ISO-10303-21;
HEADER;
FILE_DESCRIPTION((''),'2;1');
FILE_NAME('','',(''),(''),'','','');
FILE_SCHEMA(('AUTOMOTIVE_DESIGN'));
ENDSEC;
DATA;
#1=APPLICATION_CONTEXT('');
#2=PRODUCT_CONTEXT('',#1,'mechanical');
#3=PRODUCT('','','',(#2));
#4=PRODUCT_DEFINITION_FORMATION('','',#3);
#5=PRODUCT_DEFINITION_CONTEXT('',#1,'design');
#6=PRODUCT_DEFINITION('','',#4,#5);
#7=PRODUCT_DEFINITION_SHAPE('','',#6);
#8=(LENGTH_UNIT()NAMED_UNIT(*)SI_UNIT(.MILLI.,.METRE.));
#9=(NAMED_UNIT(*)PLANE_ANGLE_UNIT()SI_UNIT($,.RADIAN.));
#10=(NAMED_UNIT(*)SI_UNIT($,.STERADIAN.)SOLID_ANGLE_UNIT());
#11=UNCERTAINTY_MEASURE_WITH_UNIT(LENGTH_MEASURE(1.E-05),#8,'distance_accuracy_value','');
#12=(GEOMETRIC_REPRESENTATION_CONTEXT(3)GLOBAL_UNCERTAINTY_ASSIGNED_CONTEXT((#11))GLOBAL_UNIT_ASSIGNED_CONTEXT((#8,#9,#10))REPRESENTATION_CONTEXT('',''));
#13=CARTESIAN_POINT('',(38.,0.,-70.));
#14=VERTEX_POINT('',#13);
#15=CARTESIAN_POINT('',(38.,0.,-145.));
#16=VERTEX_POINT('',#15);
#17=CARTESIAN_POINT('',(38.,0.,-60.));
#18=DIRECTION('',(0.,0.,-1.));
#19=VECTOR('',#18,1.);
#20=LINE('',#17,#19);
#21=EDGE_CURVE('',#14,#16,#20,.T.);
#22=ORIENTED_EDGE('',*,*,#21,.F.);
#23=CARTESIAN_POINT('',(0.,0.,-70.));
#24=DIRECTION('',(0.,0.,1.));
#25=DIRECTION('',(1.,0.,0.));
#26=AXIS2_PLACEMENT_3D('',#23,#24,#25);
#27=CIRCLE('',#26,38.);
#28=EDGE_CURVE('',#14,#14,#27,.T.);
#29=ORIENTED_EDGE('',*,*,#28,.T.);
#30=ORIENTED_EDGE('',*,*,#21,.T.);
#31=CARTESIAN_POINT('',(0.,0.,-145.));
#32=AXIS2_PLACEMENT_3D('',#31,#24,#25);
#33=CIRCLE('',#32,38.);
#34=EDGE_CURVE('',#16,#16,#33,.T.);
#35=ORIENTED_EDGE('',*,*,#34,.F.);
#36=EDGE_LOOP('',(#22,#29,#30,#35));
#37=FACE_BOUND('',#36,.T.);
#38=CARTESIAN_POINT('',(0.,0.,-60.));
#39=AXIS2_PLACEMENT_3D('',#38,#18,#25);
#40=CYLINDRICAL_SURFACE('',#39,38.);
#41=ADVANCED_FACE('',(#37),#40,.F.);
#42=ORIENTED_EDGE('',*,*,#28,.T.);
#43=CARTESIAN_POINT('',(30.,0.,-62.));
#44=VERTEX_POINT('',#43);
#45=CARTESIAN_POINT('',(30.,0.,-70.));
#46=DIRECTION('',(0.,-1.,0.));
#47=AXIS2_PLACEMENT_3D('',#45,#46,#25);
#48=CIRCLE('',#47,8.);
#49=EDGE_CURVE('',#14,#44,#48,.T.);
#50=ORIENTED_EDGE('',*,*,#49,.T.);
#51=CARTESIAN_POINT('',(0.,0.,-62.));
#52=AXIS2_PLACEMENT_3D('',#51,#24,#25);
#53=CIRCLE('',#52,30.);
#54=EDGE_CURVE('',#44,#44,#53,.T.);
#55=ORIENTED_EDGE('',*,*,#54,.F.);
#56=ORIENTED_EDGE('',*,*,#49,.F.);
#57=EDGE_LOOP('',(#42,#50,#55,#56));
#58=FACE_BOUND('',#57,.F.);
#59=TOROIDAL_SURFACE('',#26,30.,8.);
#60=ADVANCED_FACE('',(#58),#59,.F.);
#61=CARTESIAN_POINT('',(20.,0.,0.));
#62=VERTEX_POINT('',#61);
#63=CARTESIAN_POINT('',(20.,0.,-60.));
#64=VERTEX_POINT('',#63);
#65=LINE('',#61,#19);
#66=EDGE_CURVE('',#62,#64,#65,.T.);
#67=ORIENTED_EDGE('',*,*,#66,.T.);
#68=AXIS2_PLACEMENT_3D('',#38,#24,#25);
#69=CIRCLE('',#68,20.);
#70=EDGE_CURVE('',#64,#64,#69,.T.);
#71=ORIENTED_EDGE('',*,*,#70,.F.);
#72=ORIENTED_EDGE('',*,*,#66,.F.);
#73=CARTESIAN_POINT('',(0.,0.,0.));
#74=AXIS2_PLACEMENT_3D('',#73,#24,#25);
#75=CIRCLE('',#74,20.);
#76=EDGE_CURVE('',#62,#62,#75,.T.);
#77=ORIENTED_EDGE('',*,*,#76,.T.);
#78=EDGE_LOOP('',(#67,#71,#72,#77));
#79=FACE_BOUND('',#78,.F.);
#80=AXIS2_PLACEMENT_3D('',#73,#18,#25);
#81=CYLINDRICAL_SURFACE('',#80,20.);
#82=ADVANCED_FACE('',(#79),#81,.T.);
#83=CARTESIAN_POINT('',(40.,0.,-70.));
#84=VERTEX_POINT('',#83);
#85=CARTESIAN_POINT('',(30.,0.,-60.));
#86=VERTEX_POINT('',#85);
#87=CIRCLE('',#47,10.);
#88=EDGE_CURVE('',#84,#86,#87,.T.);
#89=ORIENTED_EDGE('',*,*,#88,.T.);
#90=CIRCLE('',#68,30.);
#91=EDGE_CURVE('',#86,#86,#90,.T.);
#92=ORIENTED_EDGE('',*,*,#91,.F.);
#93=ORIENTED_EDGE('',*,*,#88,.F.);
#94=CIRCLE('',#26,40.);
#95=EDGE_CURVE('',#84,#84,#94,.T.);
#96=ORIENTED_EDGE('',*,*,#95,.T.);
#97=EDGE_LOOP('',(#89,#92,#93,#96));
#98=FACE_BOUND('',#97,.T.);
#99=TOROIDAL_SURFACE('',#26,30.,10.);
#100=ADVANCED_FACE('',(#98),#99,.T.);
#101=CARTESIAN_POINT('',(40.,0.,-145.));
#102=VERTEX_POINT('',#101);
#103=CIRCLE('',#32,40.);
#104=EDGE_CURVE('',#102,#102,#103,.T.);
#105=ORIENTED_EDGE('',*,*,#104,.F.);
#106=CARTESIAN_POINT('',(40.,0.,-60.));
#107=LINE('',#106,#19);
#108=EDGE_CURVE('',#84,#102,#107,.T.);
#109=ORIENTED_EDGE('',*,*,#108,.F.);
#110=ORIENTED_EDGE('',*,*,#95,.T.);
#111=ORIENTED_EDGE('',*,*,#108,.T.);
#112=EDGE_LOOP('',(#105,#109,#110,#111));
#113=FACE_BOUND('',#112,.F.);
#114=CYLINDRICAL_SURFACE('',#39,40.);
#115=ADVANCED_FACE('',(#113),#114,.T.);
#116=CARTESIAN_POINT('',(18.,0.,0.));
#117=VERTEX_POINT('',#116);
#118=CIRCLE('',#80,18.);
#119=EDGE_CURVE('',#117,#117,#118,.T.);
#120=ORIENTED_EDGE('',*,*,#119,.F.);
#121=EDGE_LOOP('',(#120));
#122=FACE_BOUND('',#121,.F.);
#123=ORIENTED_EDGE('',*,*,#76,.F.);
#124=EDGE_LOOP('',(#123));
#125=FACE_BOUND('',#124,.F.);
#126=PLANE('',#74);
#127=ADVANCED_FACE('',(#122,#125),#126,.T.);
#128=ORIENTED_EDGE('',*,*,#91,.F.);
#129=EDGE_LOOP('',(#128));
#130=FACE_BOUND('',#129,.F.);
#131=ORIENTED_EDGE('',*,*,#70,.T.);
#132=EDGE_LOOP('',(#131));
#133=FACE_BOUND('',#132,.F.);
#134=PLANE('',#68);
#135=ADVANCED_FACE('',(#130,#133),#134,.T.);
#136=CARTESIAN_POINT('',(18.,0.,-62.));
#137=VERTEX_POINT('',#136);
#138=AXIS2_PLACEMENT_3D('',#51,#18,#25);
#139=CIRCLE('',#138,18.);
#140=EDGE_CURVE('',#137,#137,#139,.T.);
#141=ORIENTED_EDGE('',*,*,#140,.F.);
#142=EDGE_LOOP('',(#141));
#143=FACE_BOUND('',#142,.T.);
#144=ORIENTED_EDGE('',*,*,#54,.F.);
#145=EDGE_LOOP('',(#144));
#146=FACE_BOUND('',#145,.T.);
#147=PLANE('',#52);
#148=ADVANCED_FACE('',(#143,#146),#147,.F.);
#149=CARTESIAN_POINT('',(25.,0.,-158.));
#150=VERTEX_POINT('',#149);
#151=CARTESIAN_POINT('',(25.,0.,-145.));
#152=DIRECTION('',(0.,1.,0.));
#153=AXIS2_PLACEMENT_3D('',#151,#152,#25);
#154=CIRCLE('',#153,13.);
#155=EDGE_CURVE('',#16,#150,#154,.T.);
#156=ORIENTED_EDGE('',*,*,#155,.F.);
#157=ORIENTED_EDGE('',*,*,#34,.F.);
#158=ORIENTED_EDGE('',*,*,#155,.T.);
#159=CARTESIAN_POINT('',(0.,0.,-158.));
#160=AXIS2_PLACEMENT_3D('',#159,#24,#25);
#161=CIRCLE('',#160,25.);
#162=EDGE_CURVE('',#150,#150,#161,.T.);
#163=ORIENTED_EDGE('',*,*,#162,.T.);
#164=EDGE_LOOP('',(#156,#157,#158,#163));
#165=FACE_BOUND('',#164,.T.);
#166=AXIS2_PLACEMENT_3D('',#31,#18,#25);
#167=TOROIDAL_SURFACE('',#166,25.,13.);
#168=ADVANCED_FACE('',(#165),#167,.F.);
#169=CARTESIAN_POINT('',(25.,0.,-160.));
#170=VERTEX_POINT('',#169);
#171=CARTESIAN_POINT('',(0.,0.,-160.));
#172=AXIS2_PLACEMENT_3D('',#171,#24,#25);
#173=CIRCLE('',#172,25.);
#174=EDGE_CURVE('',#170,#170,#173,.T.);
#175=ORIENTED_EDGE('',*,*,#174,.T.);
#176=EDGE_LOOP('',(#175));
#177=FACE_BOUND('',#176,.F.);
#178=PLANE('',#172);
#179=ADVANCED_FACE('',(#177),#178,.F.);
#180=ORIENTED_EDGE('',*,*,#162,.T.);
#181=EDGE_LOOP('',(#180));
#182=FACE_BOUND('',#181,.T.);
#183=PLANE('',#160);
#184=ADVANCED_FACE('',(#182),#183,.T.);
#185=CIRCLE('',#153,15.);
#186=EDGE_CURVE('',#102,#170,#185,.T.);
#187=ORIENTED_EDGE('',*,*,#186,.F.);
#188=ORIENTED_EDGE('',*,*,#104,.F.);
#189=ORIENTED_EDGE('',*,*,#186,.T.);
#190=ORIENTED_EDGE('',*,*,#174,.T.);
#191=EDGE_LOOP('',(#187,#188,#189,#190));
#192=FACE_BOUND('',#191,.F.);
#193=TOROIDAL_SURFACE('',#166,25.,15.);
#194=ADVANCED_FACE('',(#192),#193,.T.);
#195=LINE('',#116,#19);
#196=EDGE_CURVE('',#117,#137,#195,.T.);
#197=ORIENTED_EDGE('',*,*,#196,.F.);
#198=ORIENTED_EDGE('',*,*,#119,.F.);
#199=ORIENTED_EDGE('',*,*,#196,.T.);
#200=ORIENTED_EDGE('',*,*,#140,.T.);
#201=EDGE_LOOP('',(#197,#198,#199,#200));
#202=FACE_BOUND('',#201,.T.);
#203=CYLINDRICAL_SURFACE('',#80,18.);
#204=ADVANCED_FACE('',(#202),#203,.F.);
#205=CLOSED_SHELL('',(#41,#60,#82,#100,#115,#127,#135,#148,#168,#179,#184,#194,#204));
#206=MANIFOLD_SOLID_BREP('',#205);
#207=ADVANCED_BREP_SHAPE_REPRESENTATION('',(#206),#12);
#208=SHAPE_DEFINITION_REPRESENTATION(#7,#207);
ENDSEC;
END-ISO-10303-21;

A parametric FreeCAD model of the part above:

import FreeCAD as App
import Part
import Sketcher
Q = App.Units.Quantity


def edges_at(feature, points):
    """Names of the edges that pass closest to the given points."""
    edges = feature.Shape.Edges
    near = lambda p: min(range(len(edges)), key=lambda i: edges[i].distToShape(Part.Vertex(*p))[0])
    return sorted({f"Edge{near(p) + 1}" for p in points})


def faces_at(feature, points):
    """Names of the faces that lie closest to the given points."""
    faces = feature.Shape.Faces
    near = lambda p: min(range(len(faces)), key=lambda i: faces[i].distToShape(Part.Vertex(*p))[0])
    return sorted({f"Face{near(p) + 1}" for p in points})

doc = App.newDocument("Part")
body = doc.addObject("PartDesign::Body", "Body")

sketch1 = body.newObject("Sketcher::SketchObject", "Sketch")
sketch1.AttachmentSupport = (doc.getObject("XZ_Plane"), [""])
sketch1.MapMode = "FlatFace"
sketch1.addGeometry([
    Part.LineSegment(App.Vector(0, -160, 0), App.Vector(0, 0, 0)),
    Part.LineSegment(App.Vector(0, 0, 0), App.Vector(20, 0, 0)),
    Part.LineSegment(App.Vector(20, 0, 0), App.Vector(20, -60, 0)),
    Part.LineSegment(App.Vector(20, -60, 0), App.Vector(40, -60, 0)),
    Part.LineSegment(App.Vector(40, -60, 0), App.Vector(40, -160, 0)),
    Part.LineSegment(App.Vector(40, -160, 0), App.Vector(0, -160, 0)),
], False)
sketch1.addConstraint([
    Sketcher.Constraint("Coincident", 0, 2, 1, 1),
    Sketcher.Constraint("Coincident", 1, 2, 2, 1),
    Sketcher.Constraint("Coincident", 2, 2, 3, 1),
    Sketcher.Constraint("Coincident", 3, 2, 4, 1),
    Sketcher.Constraint("Coincident", 4, 2, 5, 1),
    Sketcher.Constraint("Coincident", 5, 2, 0, 1),
    Sketcher.Constraint("Vertical", 0),
    Sketcher.Constraint("Horizontal", 1),
    Sketcher.Constraint("Vertical", 2),
    Sketcher.Constraint("Horizontal", 3),
    Sketcher.Constraint("Vertical", 4),
    Sketcher.Constraint("Horizontal", 5),
    Sketcher.Constraint("Coincident", 0, 2, -1, 1),
    Sketcher.Constraint("Equal", 1, 3),
    Sketcher.Constraint("DistanceX", 1, 1, 1, 2, Q("20 mm")),
    Sketcher.Constraint("DistanceY", 0, 1, 0, 2, Q("160 mm")),
    Sketcher.Constraint("DistanceY", 4, 2, 4, 1, Q("100 mm")),
])
revolution = body.newObject("PartDesign::Revolution", "Revolution")
revolution.Profile = sketch1
revolution.ReferenceAxis = (sketch1, ["V_Axis"])
revolution.Angle = 360
doc.recompute()

fillet = body.newObject("PartDesign::Fillet", "Fillet")
fillet.Base = (revolution, edges_at(revolution, [(-37.293, -14.465, -60)]))
fillet.Radius = 10
doc.recompute()

fillet2 = body.newObject("PartDesign::Fillet", "Fillet001")
fillet2.Base = (fillet, edges_at(fillet, [(-37.293, -14.465, -160)]))
fillet2.Radius = 15
doc.recompute()

thickness = body.newObject("PartDesign::Thickness", "Thickness")
thickness.Base = (fillet2, faces_at(fillet2, [(3.86, -3.247, 0)]))
thickness.Value = 2
thickness.Reversed = True
thickness.Join = "Intersection"

doc.recompute()
